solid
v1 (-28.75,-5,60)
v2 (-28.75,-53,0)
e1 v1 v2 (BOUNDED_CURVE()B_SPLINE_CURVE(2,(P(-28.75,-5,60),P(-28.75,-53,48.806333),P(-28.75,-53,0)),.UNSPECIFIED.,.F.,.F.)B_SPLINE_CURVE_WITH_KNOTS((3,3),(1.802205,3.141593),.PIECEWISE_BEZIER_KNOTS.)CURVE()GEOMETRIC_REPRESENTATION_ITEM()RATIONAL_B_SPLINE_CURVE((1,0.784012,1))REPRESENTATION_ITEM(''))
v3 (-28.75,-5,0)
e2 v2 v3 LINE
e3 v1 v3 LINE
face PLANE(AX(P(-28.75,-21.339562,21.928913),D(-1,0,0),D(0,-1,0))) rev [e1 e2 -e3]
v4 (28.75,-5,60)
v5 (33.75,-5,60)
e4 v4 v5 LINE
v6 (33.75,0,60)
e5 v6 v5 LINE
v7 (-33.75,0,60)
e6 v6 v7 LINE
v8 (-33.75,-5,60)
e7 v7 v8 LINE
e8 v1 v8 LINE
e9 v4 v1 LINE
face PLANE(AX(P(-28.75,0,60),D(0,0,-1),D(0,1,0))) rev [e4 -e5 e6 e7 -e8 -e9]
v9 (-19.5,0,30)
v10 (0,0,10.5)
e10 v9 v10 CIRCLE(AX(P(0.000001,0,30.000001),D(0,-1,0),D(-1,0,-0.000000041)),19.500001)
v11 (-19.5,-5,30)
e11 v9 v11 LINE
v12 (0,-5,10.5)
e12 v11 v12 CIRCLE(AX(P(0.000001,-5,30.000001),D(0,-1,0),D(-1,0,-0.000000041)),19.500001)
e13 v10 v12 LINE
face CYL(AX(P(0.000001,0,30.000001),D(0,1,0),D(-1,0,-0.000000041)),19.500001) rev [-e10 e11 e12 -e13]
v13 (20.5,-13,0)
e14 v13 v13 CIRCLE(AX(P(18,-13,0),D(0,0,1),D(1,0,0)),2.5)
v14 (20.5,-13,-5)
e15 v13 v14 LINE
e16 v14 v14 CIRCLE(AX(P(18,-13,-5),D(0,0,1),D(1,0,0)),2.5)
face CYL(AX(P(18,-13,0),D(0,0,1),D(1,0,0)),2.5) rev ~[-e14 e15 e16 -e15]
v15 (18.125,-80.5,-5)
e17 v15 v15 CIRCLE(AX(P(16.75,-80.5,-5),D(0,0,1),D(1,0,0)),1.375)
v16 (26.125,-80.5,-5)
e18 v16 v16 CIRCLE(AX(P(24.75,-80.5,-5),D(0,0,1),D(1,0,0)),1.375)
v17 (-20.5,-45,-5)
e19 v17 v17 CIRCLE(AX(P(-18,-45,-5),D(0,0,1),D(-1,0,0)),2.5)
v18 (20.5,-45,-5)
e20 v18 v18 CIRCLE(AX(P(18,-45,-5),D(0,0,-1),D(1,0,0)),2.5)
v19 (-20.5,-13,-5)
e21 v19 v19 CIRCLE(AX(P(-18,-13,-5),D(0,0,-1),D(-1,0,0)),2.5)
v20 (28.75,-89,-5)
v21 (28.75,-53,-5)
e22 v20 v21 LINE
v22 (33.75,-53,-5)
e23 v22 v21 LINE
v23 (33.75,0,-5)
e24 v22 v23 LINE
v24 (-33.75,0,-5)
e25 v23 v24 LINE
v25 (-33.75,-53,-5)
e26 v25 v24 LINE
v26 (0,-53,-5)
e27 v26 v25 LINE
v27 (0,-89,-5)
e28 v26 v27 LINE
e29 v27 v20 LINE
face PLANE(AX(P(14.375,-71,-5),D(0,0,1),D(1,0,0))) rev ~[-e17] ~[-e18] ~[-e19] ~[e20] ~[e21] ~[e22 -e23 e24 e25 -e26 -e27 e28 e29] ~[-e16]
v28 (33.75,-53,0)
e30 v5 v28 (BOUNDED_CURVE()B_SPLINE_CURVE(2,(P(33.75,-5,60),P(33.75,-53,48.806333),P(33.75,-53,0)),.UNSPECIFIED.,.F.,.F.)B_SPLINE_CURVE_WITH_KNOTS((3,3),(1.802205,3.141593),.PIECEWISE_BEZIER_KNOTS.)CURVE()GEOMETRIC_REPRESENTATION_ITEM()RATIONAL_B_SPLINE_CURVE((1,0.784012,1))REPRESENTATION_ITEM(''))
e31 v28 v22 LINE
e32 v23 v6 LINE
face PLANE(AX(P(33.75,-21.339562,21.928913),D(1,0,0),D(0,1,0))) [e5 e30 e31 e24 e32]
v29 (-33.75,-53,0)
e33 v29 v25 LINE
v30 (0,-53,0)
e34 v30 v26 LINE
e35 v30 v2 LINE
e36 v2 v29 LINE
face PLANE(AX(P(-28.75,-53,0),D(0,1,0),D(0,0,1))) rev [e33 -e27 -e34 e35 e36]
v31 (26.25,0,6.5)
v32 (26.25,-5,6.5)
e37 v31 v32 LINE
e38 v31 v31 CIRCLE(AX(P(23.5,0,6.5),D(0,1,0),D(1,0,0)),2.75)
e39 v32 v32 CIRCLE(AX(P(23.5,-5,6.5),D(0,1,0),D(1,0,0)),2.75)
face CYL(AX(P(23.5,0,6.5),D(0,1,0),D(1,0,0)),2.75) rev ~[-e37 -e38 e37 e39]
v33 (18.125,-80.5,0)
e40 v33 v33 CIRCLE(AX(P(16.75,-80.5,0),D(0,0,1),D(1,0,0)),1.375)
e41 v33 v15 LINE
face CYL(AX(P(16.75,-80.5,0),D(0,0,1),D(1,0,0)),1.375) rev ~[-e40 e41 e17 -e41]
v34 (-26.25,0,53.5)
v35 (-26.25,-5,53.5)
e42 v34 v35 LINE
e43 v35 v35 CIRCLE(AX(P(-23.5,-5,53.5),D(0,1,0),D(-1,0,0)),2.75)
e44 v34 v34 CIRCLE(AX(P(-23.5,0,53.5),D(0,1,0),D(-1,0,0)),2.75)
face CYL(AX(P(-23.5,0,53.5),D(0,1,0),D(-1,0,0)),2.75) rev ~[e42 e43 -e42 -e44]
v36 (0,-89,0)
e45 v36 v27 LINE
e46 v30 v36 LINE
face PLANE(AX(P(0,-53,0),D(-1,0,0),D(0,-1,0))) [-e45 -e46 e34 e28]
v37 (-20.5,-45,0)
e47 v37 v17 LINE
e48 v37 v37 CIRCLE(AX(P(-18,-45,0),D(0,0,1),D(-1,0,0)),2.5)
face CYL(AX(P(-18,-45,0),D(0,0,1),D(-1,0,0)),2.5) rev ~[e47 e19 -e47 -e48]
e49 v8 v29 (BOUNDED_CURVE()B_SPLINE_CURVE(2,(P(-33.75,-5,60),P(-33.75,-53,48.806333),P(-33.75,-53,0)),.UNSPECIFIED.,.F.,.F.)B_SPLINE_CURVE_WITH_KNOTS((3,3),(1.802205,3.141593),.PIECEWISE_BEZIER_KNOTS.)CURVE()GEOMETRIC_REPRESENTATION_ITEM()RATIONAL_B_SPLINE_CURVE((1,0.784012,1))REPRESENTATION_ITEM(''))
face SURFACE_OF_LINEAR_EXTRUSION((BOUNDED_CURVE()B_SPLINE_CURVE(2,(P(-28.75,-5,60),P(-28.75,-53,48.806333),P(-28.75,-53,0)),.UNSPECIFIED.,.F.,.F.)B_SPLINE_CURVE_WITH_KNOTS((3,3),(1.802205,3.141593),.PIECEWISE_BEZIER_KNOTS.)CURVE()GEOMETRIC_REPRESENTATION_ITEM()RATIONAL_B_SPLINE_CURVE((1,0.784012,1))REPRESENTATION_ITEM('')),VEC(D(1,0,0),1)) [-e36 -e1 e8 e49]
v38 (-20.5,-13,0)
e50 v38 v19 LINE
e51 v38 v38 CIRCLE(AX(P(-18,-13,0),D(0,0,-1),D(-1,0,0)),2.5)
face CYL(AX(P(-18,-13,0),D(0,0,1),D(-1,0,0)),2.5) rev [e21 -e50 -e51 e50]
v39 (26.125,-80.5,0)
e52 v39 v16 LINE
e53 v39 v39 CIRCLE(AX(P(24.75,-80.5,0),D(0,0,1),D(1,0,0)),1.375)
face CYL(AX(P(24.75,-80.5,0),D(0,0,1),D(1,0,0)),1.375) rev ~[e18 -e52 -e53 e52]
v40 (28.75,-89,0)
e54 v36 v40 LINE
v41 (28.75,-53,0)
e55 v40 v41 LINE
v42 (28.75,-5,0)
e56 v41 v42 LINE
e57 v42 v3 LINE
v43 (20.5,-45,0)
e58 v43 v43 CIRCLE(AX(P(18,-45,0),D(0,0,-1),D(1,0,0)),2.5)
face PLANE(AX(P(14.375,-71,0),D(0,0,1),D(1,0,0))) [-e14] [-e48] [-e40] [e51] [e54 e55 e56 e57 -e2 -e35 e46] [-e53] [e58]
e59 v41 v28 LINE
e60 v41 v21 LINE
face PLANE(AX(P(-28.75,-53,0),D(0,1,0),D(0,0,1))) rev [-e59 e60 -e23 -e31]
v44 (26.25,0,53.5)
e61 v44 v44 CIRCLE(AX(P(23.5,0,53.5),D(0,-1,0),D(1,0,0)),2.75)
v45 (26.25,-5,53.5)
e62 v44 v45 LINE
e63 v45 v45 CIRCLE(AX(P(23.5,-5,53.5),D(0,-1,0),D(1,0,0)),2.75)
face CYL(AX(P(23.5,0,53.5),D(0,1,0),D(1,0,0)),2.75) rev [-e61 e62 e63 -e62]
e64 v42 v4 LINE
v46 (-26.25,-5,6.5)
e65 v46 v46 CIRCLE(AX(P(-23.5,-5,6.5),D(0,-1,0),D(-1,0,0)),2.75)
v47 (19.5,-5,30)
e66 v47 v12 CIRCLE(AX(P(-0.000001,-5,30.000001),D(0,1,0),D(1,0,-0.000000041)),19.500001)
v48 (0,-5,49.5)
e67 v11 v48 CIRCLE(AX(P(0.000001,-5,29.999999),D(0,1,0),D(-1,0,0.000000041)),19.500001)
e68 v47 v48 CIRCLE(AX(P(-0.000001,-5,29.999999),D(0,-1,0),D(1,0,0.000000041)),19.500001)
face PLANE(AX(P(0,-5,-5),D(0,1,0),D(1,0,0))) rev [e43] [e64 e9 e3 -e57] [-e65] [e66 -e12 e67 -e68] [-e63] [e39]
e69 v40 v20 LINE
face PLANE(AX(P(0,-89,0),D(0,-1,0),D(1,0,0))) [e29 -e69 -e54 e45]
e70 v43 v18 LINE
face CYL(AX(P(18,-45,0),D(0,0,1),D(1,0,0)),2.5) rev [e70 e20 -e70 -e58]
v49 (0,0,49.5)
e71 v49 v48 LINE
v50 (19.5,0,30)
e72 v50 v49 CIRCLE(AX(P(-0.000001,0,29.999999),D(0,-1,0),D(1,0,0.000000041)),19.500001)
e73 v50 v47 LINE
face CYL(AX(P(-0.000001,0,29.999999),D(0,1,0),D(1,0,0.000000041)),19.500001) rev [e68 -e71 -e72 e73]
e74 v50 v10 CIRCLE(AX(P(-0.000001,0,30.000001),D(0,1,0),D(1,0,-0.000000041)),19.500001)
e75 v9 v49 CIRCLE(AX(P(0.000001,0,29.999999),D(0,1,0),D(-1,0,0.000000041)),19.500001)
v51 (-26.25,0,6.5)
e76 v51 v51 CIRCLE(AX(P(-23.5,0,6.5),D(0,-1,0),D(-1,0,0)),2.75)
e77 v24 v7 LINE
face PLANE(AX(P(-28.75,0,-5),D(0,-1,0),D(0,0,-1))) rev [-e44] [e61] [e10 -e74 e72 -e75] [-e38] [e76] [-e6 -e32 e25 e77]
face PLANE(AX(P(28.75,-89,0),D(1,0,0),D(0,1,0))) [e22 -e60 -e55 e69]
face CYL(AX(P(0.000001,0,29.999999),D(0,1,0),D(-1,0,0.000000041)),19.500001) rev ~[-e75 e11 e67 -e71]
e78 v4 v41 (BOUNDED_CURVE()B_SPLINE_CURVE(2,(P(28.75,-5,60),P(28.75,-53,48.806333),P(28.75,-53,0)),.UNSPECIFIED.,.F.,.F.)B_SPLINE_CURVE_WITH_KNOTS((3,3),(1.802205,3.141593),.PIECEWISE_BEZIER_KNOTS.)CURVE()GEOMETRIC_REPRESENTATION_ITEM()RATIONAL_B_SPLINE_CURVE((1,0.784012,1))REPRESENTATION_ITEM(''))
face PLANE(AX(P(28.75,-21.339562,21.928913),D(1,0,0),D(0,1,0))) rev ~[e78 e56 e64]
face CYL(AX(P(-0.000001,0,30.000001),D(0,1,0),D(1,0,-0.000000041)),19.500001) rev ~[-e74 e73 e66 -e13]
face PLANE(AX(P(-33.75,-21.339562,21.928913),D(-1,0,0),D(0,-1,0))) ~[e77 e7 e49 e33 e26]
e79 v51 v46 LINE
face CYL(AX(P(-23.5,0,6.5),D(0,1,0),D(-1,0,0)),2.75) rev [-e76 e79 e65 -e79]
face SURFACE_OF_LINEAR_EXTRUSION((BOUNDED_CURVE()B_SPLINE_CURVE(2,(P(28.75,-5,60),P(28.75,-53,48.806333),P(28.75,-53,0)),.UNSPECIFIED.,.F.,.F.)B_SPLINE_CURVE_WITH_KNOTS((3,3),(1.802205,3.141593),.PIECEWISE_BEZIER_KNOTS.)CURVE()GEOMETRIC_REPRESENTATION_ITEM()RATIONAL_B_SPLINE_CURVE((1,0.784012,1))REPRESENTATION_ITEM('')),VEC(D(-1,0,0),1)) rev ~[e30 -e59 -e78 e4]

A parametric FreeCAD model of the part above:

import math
import FreeCAD as App
import Part
import Sketcher
Q = App.Units.Quantity

doc = App.newDocument("Part")
body = doc.addObject("PartDesign::Body", "Body")

# Sketch on XZ plane
sketch1 = body.newObject("Sketcher::SketchObject", "Sketch")
sketch1.AttachmentSupport = (doc.getObject("XZ_Plane"), [""])
sketch1.MapMode = "FlatFace"
sketch1.addGeometry([
    Part.ArcOfCircle(Part.Circle(App.Vector(0, 30, 0), App.Vector(0, 0, 1), 19.5), math.radians(0), math.radians(90)),  # 0
    Part.LineSegment(App.Vector(19.5, 30, 0), App.Vector(28.8, 30, 0)),  # 1
    Part.LineSegment(App.Vector(28.8, 30, 0), App.Vector(28.8, 60, 0)),  # 2
    Part.LineSegment(App.Vector(28.8, 60, 0), App.Vector(0, 60, 0)),  # 3
    Part.LineSegment(App.Vector(0, 60, 0), App.Vector(0, 49.5, 0)),  # 4
    Part.Circle(App.Vector(23.5, 53.5, 0), App.Vector(0, 0, 1), 2.8),  # 5
], False)
sketch1.addConstraint([
    Sketcher.Constraint("Coincident", 0, 1, 1, 1),
    Sketcher.Constraint("Coincident", 1, 2, 2, 1),
    Sketcher.Constraint("Coincident", 2, 2, 3, 1),
    Sketcher.Constraint("Coincident", 3, 2, 4, 1),
    Sketcher.Constraint("Coincident", 4, 2, 0, 2),
    Sketcher.Constraint("Horizontal", 1),
    Sketcher.Constraint("Vertical", 2),
    Sketcher.Constraint("Horizontal", 3),
    Sketcher.Constraint("Vertical", 4),
    Sketcher.Constraint("PointOnObject", 0, 3, -2),
    Sketcher.Constraint("PointOnObject", 3, 2, -2),
    Sketcher.Constraint("Diameter", 5, Q("5.5 mm")),
    Sketcher.Constraint("Radius", 0, Q("19.500001 mm")),
    Sketcher.Constraint("DistanceY", 2, 1, 2, 2, Q("30 mm")),
    Sketcher.Constraint("DistanceY", 4, 2, 4, 1, Q("10.5 mm")),
    Sketcher.Constraint("DistanceY", -1, 1, 0, 3, Q("29.999999 mm")),
    Sketcher.Constraint("DistanceX", 0, 1, 5, 3, Q("4 mm")),
    Sketcher.Constraint("DistanceY", 4, 2, 5, 3, Q("4 mm")),
    Sketcher.Constraint("DistanceX", 1, 1, 1, 2, Q("9.25 mm")),
])
pad1 = body.newObject("PartDesign::Pad", "Pad")
pad1.Profile = sketch1
pad1.Length = 5

# Sketch on XZ plane
sketch2 = body.newObject("Sketcher::SketchObject", "Sketch001")
sketch2.AttachmentSupport = (doc.getObject("XZ_Plane"), [""])
sketch2.MapMode = "FlatFace"
sketch2.addGeometry([
    Part.ArcOfCircle(Part.Circle(App.Vector(0, 30, 0), App.Vector(0, 0, 1), 19.5), math.radians(90), math.radians(180)),  # 0
    Part.LineSegment(App.Vector(-19.5, 30, 0), App.Vector(-28.8, 30, 0)),  # 1
    Part.LineSegment(App.Vector(-28.8, 30, 0), App.Vector(-28.8, 60, 0)),  # 2
    Part.LineSegment(App.Vector(-28.8, 60, 0), App.Vector(0, 60, 0)),  # 3
    Part.LineSegment(App.Vector(0, 60, 0), App.Vector(0, 49.5, 0)),  # 4
    Part.Circle(App.Vector(-23.5, 53.5, 0), App.Vector(0, 0, 1), 2.8),  # 5
], False)
sketch2.addConstraint([
    Sketcher.Constraint("Coincident", 0, 2, 1, 1),
    Sketcher.Constraint("Coincident", 1, 2, 2, 1),
    Sketcher.Constraint("Coincident", 2, 2, 3, 1),
    Sketcher.Constraint("Coincident", 3, 2, 4, 1),
    Sketcher.Constraint("Coincident", 4, 2, 0, 1),
    Sketcher.Constraint("Horizontal", 1),
    Sketcher.Constraint("Vertical", 2),
    Sketcher.Constraint("Horizontal", 3),
    Sketcher.Constraint("Vertical", 4),
    Sketcher.Constraint("PointOnObject", 0, 3, -2),
    Sketcher.Constraint("PointOnObject", 3, 2, -2),
    Sketcher.Constraint("Diameter", 5, Q("5.5 mm")),
    Sketcher.Constraint("Radius", 0, Q("19.500001 mm")),
    Sketcher.Constraint("DistanceY", 2, 1, 2, 2, Q("30 mm")),
    Sketcher.Constraint("DistanceY", 4, 2, 4, 1, Q("10.5 mm")),
    Sketcher.Constraint("DistanceY", -1, 1, 0, 3, Q("29.999999 mm")),
    Sketcher.Constraint("DistanceX", 5, 3, 0, 2, Q("4 mm")),
    Sketcher.Constraint("DistanceY", 4, 2, 5, 3, Q("4 mm")),
    Sketcher.Constraint("DistanceX", 1, 2, 1, 1, Q("9.25 mm")),
])
pad2 = body.newObject("PartDesign::Pad", "Pad001")
pad2.Profile = sketch2
pad2.Length = 5
doc.recompute()

datumplane = body.newObject("PartDesign::Plane", "DatumPlane")
datumplane.AttachmentSupport = (doc.getObject("XY_Plane"), [""])
datumplane.MapMode = "FlatFace"
datumplane.AttachmentOffset = App.Placement(App.Vector(0, 0, 30), App.Rotation())
mirrored = body.newObject("PartDesign::Mirrored", "Mirrored")
mirrored.Originals = [pad1, pad2]
mirrored.MirrorPlane = (datumplane, [""])
body.Tip = mirrored

# Sketch on XY plane
sketch3 = body.newObject("Sketcher::SketchObject", "Sketch002")
sketch3.AttachmentSupport = (doc.getObject("XY_Plane"), [""])
sketch3.MapMode = "FlatFace"
sketch3.AttachmentOffset = App.Placement(App.Vector(0, 0, -5), App.Rotation())
sketch3.addGeometry([
    Part.LineSegment(App.Vector(0, 0, 0), App.Vector(0, -5, 0)),
    Part.LineSegment(App.Vector(0, -5, 0), App.Vector(33, -5, 0)),
    Part.LineSegment(App.Vector(33, -5, 0), App.Vector(33, 0, 0)),
    Part.LineSegment(App.Vector(33, 0, 0), App.Vector(0, 0, 0)),
], False)
sketch3.addConstraint([
    Sketcher.Constraint("Coincident", 0, 2, 1, 1),
    Sketcher.Constraint("Coincident", 1, 2, 2, 1),
    Sketcher.Constraint("Coincident", 2, 2, 3, 1),
    Sketcher.Constraint("Coincident", 3, 2, 0, 1),
    Sketcher.Constraint("Vertical", 0),
    Sketcher.Constraint("Horizontal", 1),
    Sketcher.Constraint("Vertical", 2),
    Sketcher.Constraint("Horizontal", 3),
    Sketcher.Constraint("Coincident", 3, 2, -1, 1),
    Sketcher.Constraint("DistanceY", 0, 2, 0, 1, Q("5 mm")),
    Sketcher.Constraint("DistanceX", 1, 1, 1, 2, Q("32.75 mm")),
])
pad3 = body.newObject("PartDesign::Pad", "Pad002")
pad3.Profile = sketch3
pad3.Length = 5
doc.recompute()

mirrored2 = body.newObject("PartDesign::Mirrored", "Mirrored001")
mirrored2.Originals = [pad3]
mirrored2.MirrorPlane = (doc.getObject("YZ_Plane"), [""])
body.Tip = mirrored2

# Sketch on XY plane
sketch4 = body.newObject("Sketcher::SketchObject", "Sketch003")
sketch4.AttachmentSupport = (doc.getObject("XY_Plane"), [""])
sketch4.MapMode = "FlatFace"
sketch4.addGeometry([
    Part.LineSegment(App.Vector(0, -5, 0), App.Vector(0, -29, 0)),  # 0
    Part.LineSegment(App.Vector(0, -29, 0), App.Vector(28.8, -29, 0)),  # 1
    Part.LineSegment(App.Vector(28.8, -29, 0), App.Vector(28.8, -5, 0)),  # 2
    Part.LineSegment(App.Vector(28.8, -5, 0), App.Vector(0, -5, 0)),  # 3
    Part.Circle(App.Vector(18, -13, 0), App.Vector(0, 0, 1), 2.5),  # 4
], False)
sketch4.addConstraint([
    Sketcher.Constraint("Coincident", 0, 2, 1, 1),
    Sketcher.Constraint("Coincident", 1, 2, 2, 1),
    Sketcher.Constraint("Coincident", 2, 2, 3, 1),
    Sketcher.Constraint("Coincident", 3, 2, 0, 1),
    Sketcher.Constraint("Vertical", 0),
    Sketcher.Constraint("Horizontal", 1),
    Sketcher.Constraint("Vertical", 2),
    Sketcher.Constraint("Horizontal", 3),
    Sketcher.Constraint("PointOnObject", 0, 2, -2),
    Sketcher.Constraint("Diameter", 4, Q("5 mm")),
    Sketcher.Constraint("DistanceY", 0, 2, 0, 1, Q("24 mm")),
    Sketcher.Constraint("DistanceX", -1, 1, 4, 3, Q("18 mm")),
    Sketcher.Constraint("DistanceY", 4, 3, -1, 1, Q("13 mm")),
    Sketcher.Constraint("DistanceY", 0, 2, -1, 1, Q("29 mm")),
    Sketcher.Constraint("DistanceX", 1, 1, 1, 2, Q("28.75 mm")),
])
pad4 = body.newObject("PartDesign::Pad", "Pad003")
pad4.Profile = sketch4
pad4.Length = 5
pad4.Reversed = True

# Sketch on XY plane
sketch5 = body.newObject("Sketcher::SketchObject", "Sketch004")
sketch5.AttachmentSupport = (doc.getObject("XY_Plane"), [""])
sketch5.MapMode = "FlatFace"
sketch5.addGeometry([
    Part.LineSegment(App.Vector(0, -5, 0), App.Vector(0, -29, 0)),  # 0
    Part.LineSegment(App.Vector(0, -29, 0), App.Vector(-28.8, -29, 0)),  # 1
    Part.LineSegment(App.Vector(-28.8, -29, 0), App.Vector(-28.8, -5, 0)),  # 2
    Part.LineSegment(App.Vector(-28.8, -5, 0), App.Vector(0, -5, 0)),  # 3
    Part.Circle(App.Vector(-18, -13, 0), App.Vector(0, 0, 1), 2.5),  # 4
], False)
sketch5.addConstraint([
    Sketcher.Constraint("Coincident", 0, 2, 1, 1),
    Sketcher.Constraint("Coincident", 1, 2, 2, 1),
    Sketcher.Constraint("Coincident", 2, 2, 3, 1),
    Sketcher.Constraint("Coincident", 3, 2, 0, 1),
    Sketcher.Constraint("Vertical", 0),
    Sketcher.Constraint("Horizontal", 1),
    Sketcher.Constraint("Vertical", 2),
    Sketcher.Constraint("Horizontal", 3),
    Sketcher.Constraint("PointOnObject", 0, 2, -2),
    Sketcher.Constraint("Diameter", 4, Q("5 mm")),
    Sketcher.Constraint("DistanceY", 0, 2, 0, 1, Q("24 mm")),
    Sketcher.Constraint("DistanceX", 4, 3, -1, 1, Q("18 mm")),
    Sketcher.Constraint("DistanceY", 4, 3, -1, 1, Q("13 mm")),
    Sketcher.Constraint("DistanceY", 0, 2, -1, 1, Q("29 mm")),
    Sketcher.Constraint("DistanceX", 1, 2, 1, 1, Q("28.75 mm")),
])
pad5 = body.newObject("PartDesign::Pad", "Pad004")
pad5.Profile = sketch5
pad5.Length = 5
pad5.Reversed = True
doc.recompute()

datumplane2 = body.newObject("PartDesign::Plane", "DatumPlane001")
datumplane2.AttachmentSupport = (doc.getObject("XZ_Plane"), [""])
datumplane2.MapMode = "FlatFace"
datumplane2.AttachmentOffset = App.Placement(App.Vector(0, 0, 29), App.Rotation())
mirrored3 = body.newObject("PartDesign::Mirrored", "Mirrored002")
mirrored3.Originals = [pad4, pad5]
mirrored3.MirrorPlane = (datumplane2, [""])
body.Tip = mirrored3

# Sketch on YZ plane
sketch6 = body.newObject("Sketcher::SketchObject", "Sketch005")
sketch6.AttachmentSupport = (doc.getObject("YZ_Plane"), [""])
sketch6.MapMode = "FlatFace"
sketch6.AttachmentOffset = App.Placement(App.Vector(0, 0, 28.75), App.Rotation())
sketch6.addGeometry([
    Part.LineSegment(App.Vector(0, 60, 0), App.Vector(-5, 60, 0)),  # 0
    Part.BSplineCurve([App.Vector(-5, 60, 0), App.Vector(-53, 48.806333, 0), App.Vector(-53, 0, 0)], [3, 3], [1.802205, 3.141593], False, 2, [1, 0.784012, 1], False),  # 1
    Part.LineSegment(App.Vector(-53, 0, 0), App.Vector(-53, -5, 0)),  # 2
    Part.LineSegment(App.Vector(-53, -5, 0), App.Vector(0, -5, 0)),  # 3
    Part.LineSegment(App.Vector(0, -5, 0), App.Vector(0, 60, 0)),  # 4
], False)
sketch6.addConstraint([
    Sketcher.Constraint("Block", 1),
    Sketcher.Constraint("Coincident", 0, 2, 1, 1),
    Sketcher.Constraint("Coincident", 1, 2, 2, 1),
    Sketcher.Constraint("Coincident", 2, 2, 3, 1),
    Sketcher.Constraint("Coincident", 3, 2, 4, 1),
    Sketcher.Constraint("Coincident", 4, 2, 0, 1),
    Sketcher.Constraint("Horizontal", 0),
    Sketcher.Constraint("Vertical", 2),
    Sketcher.Constraint("Horizontal", 3),
    Sketcher.Constraint("Vertical", 4),
    Sketcher.Constraint("PointOnObject", 3, 2, -2),
    Sketcher.Constraint("Equal", 0, 2),
])
pad6 = body.newObject("PartDesign::Pad", "Pad005")
pad6.Profile = sketch6
pad6.Length = 5
doc.recompute()

mirrored4 = body.newObject("PartDesign::Mirrored", "Mirrored003")
mirrored4.Originals = [pad6]
mirrored4.MirrorPlane = (doc.getObject("YZ_Plane"), [""])
body.Tip = mirrored4

# Sketch on XY plane
sketch7 = body.newObject("Sketcher::SketchObject", "Sketch006")
sketch7.AttachmentSupport = (doc.getObject("XY_Plane"), [""])
sketch7.MapMode = "FlatFace"
sketch7.addGeometry([
    Part.LineSegment(App.Vector(28.8, -53, 0), App.Vector(0, -53, 0)),  # 0
    Part.LineSegment(App.Vector(0, -53, 0), App.Vector(0, -89, 0)),  # 1
    Part.LineSegment(App.Vector(0, -89, 0), App.Vector(28.8, -89, 0)),  # 2
    Part.LineSegment(App.Vector(28.8, -89, 0), App.Vector(28.8, -53, 0)),  # 3
    Part.Circle(App.Vector(16.8, -80.5, 0), App.Vector(0, 0, 1), 1.4),  # 4
    Part.Circle(App.Vector(24.8, -80.5, 0), App.Vector(0, 0, 1), 1.4),  # 5
], False)
sketch7.addConstraint([
    Sketcher.Constraint("Coincident", 0, 2, 1, 1),
    Sketcher.Constraint("Coincident", 1, 2, 2, 1),
    Sketcher.Constraint("Coincident", 2, 2, 3, 1),
    Sketcher.Constraint("Coincident", 3, 2, 0, 1),
    Sketcher.Constraint("Horizontal", 0),
    Sketcher.Constraint("Vertical", 1),
    Sketcher.Constraint("Horizontal", 2),
    Sketcher.Constraint("Vertical", 3),
    Sketcher.Constraint("Equal", 4, 5),
    Sketcher.Constraint("PointOnObject", 0, 2, -2),
    Sketcher.Constraint("Horizontal", 4, 3, 5, 3),
    Sketcher.Constraint("Diameter", 4, Q("2.75 mm")),
    Sketcher.Constraint("DistanceY", 1, 2, 1, 1, Q("36 mm")),
    Sketcher.Constraint("DistanceY", 0, 2, -1, 1, Q("53 mm")),
    Sketcher.Constraint("DistanceX", 4, 3, 5, 3, Q("8 mm")),
    Sketcher.Constraint("DistanceX", 5, 3, 2, 2, Q("4 mm")),
    Sketcher.Constraint("DistanceX", 0, 2, 0, 1, Q("28.75 mm")),
    Sketcher.Constraint("DistanceY", 4, 3, -1, 1, Q("80.5 mm")),
])
pad7 = body.newObject("PartDesign::Pad", "Pad006")
pad7.Profile = sketch7
pad7.Length = 5
pad7.Reversed = True

doc.recompute()
